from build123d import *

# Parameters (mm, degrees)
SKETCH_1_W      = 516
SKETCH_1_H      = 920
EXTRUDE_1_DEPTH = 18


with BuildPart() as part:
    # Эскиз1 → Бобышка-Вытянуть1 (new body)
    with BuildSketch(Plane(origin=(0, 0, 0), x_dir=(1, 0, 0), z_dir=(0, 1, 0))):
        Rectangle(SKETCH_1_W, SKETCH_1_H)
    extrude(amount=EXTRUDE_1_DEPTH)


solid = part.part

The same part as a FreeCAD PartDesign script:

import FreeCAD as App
import Part
import Sketcher

doc = App.newDocument("Part")
body = doc.addObject("PartDesign::Body", "Body")

# Sketch on XZ plane
sketch1 = body.newObject("Sketcher::SketchObject", "Sketch")
sketch1.AttachmentSupport = (doc.getObject("XZ_Plane"), [""])
sketch1.MapMode = "FlatFace"
sketch1.addGeometry(Part.LineSegment(App.Vector(-258, -460, 0), App.Vector(-258, 460, 0)), False)
sketch1.addGeometry(Part.LineSegment(App.Vector(-258, 460, 0), App.Vector(258, 460, 0)), False)
sketch1.addGeometry(Part.LineSegment(App.Vector(258, 460, 0), App.Vector(258, -460, 0)), False)
sketch1.addGeometry(Part.LineSegment(App.Vector(258, -460, 0), App.Vector(-258, -460, 0)), False)
sketch1.addConstraint(Sketcher.Constraint("Coincident", 0, 2, 1, 1))
sketch1.addConstraint(Sketcher.Constraint("Coincident", 1, 2, 2, 1))
sketch1.addConstraint(Sketcher.Constraint("Coincident", 2, 2, 3, 1))
sketch1.addConstraint(Sketcher.Constraint("Coincident", 3, 2, 0, 1))
sketch1.addConstraint(Sketcher.Constraint("Vertical", 0))
sketch1.addConstraint(Sketcher.Constraint("Horizontal", 1))
sketch1.addConstraint(Sketcher.Constraint("Vertical", 2))
sketch1.addConstraint(Sketcher.Constraint("Horizontal", 3))
sketch1.addConstraint(Sketcher.Constraint("Symmetric", 0, 2, 2, 2, -1, 1))
sketch1.addConstraint(Sketcher.Constraint("DistanceX", 1, 1, 1, 2, 516.0))
sketch1.addConstraint(Sketcher.Constraint("DistanceY", 0, 1, 0, 2, 920.0))
pad1 = body.newObject("PartDesign::Pad", "Pad")
pad1.Profile = sketch1
pad1.Length = 18
pad1.Reversed = True

doc.recompute()
